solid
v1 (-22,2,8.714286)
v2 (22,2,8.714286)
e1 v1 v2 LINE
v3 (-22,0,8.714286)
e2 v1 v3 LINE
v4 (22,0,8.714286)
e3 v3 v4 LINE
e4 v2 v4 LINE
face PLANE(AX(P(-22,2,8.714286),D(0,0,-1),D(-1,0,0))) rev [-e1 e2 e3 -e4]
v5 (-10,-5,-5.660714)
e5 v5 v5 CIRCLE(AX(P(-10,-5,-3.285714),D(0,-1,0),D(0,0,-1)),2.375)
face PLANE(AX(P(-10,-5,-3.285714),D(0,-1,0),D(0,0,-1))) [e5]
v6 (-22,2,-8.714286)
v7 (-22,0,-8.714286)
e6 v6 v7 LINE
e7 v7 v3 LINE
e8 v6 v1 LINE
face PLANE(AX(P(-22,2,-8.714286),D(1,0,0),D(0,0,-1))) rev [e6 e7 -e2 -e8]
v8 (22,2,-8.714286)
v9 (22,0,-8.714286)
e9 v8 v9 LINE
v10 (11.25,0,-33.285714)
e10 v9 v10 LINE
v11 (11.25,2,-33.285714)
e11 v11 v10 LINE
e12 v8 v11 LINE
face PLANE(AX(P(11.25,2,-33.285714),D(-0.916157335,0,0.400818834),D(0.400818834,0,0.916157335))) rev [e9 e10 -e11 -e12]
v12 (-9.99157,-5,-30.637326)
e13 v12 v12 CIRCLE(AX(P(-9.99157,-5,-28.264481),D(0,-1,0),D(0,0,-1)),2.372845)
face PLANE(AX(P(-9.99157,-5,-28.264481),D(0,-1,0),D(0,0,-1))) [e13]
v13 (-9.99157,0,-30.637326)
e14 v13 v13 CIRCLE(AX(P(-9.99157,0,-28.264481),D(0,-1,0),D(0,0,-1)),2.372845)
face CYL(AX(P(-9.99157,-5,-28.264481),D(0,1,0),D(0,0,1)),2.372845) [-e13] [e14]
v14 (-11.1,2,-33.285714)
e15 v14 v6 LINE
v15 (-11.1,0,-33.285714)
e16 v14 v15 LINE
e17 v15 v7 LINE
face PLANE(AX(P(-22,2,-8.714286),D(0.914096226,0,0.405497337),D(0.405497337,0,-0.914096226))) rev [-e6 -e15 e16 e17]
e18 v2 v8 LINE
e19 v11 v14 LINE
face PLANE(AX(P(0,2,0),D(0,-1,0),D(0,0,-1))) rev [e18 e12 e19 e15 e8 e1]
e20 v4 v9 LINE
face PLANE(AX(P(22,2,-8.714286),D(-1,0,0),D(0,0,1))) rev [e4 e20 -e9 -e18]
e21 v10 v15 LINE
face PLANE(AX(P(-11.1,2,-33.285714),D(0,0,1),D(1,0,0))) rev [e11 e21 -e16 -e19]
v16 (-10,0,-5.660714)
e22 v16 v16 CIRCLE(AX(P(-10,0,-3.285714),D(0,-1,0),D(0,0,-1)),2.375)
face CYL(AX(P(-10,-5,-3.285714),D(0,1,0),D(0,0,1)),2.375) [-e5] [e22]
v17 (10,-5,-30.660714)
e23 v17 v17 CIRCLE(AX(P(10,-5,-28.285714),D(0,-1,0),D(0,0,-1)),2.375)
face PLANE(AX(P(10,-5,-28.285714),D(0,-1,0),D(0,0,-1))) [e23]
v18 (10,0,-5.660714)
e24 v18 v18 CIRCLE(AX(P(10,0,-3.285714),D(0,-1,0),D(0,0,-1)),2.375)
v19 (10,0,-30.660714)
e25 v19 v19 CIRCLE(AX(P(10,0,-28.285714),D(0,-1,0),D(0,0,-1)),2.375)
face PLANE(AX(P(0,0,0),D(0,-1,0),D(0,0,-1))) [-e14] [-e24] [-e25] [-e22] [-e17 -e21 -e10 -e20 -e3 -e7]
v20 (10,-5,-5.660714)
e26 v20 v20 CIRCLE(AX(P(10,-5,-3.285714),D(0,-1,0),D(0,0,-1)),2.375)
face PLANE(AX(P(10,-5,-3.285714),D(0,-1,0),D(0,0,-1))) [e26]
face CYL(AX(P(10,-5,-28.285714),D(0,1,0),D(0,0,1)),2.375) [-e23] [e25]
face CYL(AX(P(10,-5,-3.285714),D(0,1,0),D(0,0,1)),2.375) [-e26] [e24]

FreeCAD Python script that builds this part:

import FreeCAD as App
import Part
import Sketcher

V = App.Vector

doc = App.newDocument("Part")
body = doc.addObject("PartDesign::Body", "Body")

# Sketch on XZ plane
sketch1 = doc.addObject("Sketcher::SketchObject", "Sketch")
body.addObject(sketch1)
sketch1.AttachmentSupport = (doc.XZ_Plane, [""])
sketch1.MapMode = "FlatFace"
sketch1.addGeometry(Part.LineSegment(V(-22, -9, 0), V(-22, 9, 0)), False)
sketch1.addGeometry(Part.LineSegment(V(-22, 9, 0), V(22, 9, 0)), False)
sketch1.addGeometry(Part.LineSegment(V(22, 9, 0), V(22, -9, 0)), False)
sketch1.addGeometry(Part.LineSegment(V(22, -9, 0), V(11, -33, 0)), False)
sketch1.addGeometry(Part.LineSegment(V(11, -33, 0), V(-11, -33, 0)), False)
sketch1.addGeometry(Part.LineSegment(V(-11, -33, 0), V(-22, -9, 0)), False)
sketch1.addConstraint(Sketcher.Constraint("Coincident", 0, 2, 1, 1))
sketch1.addConstraint(Sketcher.Constraint("Coincident", 1, 2, 2, 1))
sketch1.addConstraint(Sketcher.Constraint("Coincident", 2, 2, 3, 1))
sketch1.addConstraint(Sketcher.Constraint("Coincident", 3, 2, 4, 1))
sketch1.addConstraint(Sketcher.Constraint("Coincident", 4, 2, 5, 1))
sketch1.addConstraint(Sketcher.Constraint("Coincident", 5, 2, 0, 1))
sketch1.addConstraint(Sketcher.Constraint("Vertical", 0))
sketch1.addConstraint(Sketcher.Constraint("Horizontal", 1))
sketch1.addConstraint(Sketcher.Constraint("Vertical", 2))
sketch1.addConstraint(Sketcher.Constraint("Horizontal", 4))
sketch1.addConstraint(Sketcher.Constraint("Symmetric", 0, 2, 2, 2, -1, 1))
sketch1.addConstraint(Sketcher.Constraint("Horizontal", 2, 2, 5, 2))
sketch1.addConstraint(Sketcher.Constraint("DistanceX", 1, 1, 1, 2, 44.0))
sketch1.addConstraint(Sketcher.Constraint("DistanceY", 3, 2, 1, 2, 42.0))
sketch1.addConstraint(Sketcher.Constraint("DistanceX", 4, 2, 4, 1, 22.35))
sketch1.addConstraint(Sketcher.Constraint("DistanceX", 4, 2, -1, 1, 11.1))
sketch1.addConstraint(Sketcher.Constraint("DistanceY", 0, 1, 0, 2, 17.428571))
pad1 = doc.addObject("PartDesign::Pad", "Pad")
body.addObject(pad1)
pad1.Profile = sketch1
pad1.Length = 2
pad1.Reversed = True

# Sketch on XZ plane
sketch2 = doc.addObject("Sketcher::SketchObject", "Sketch001")
body.addObject(sketch2)
sketch2.AttachmentSupport = (doc.XZ_Plane, [""])
sketch2.MapMode = "FlatFace"
sketch2.addGeometry(Part.Circle(V(-10, -3.3, 0), V(0, 0, 1), 2.4), False)
sketch2.addGeometry(Part.Circle(V(-10, -28.3, 0), V(0, 0, 1), 2.4), False)
sketch2.addGeometry(Part.Circle(V(10, -28.3, 0), V(0, 0, 1), 2.4), False)
sketch2.addGeometry(Part.Circle(V(10, -3.3, 0), V(0, 0, 1), 2.4), False)
sketch2.addConstraint(Sketcher.Constraint("Equal", 0, 2))
sketch2.addConstraint(Sketcher.Constraint("Equal", 2, 3))
sketch2.addConstraint(Sketcher.Constraint("Symmetric", 0, 3, 3, 3, -2))
sketch2.addConstraint(Sketcher.Constraint("Vertical", 2, 3, 3, 3))
sketch2.addConstraint(Sketcher.Constraint("Diameter", 0, 4.75))
sketch2.addConstraint(Sketcher.Constraint("DistanceX", 0, 3, -1, 1, 10.0))
sketch2.addConstraint(Sketcher.Constraint("DistanceY", 2, 3, 0, 3, 25.0))
sketch2.addConstraint(Sketcher.Constraint("Diameter", 1, 4.745691))
sketch2.addConstraint(Sketcher.Constraint("DistanceX", 1, 3, -1, 1, 9.99157))
sketch2.addConstraint(Sketcher.Constraint("DistanceY", 1, 3, -1, 1, 28.264481))
sketch2.addConstraint(Sketcher.Constraint("DistanceY", 0, 3, -1, 1, 3.285714))
pad2 = doc.addObject("PartDesign::Pad", "Pad001")
body.addObject(pad2)
pad2.Profile = sketch2
pad2.Length = 5

doc.recompute()
